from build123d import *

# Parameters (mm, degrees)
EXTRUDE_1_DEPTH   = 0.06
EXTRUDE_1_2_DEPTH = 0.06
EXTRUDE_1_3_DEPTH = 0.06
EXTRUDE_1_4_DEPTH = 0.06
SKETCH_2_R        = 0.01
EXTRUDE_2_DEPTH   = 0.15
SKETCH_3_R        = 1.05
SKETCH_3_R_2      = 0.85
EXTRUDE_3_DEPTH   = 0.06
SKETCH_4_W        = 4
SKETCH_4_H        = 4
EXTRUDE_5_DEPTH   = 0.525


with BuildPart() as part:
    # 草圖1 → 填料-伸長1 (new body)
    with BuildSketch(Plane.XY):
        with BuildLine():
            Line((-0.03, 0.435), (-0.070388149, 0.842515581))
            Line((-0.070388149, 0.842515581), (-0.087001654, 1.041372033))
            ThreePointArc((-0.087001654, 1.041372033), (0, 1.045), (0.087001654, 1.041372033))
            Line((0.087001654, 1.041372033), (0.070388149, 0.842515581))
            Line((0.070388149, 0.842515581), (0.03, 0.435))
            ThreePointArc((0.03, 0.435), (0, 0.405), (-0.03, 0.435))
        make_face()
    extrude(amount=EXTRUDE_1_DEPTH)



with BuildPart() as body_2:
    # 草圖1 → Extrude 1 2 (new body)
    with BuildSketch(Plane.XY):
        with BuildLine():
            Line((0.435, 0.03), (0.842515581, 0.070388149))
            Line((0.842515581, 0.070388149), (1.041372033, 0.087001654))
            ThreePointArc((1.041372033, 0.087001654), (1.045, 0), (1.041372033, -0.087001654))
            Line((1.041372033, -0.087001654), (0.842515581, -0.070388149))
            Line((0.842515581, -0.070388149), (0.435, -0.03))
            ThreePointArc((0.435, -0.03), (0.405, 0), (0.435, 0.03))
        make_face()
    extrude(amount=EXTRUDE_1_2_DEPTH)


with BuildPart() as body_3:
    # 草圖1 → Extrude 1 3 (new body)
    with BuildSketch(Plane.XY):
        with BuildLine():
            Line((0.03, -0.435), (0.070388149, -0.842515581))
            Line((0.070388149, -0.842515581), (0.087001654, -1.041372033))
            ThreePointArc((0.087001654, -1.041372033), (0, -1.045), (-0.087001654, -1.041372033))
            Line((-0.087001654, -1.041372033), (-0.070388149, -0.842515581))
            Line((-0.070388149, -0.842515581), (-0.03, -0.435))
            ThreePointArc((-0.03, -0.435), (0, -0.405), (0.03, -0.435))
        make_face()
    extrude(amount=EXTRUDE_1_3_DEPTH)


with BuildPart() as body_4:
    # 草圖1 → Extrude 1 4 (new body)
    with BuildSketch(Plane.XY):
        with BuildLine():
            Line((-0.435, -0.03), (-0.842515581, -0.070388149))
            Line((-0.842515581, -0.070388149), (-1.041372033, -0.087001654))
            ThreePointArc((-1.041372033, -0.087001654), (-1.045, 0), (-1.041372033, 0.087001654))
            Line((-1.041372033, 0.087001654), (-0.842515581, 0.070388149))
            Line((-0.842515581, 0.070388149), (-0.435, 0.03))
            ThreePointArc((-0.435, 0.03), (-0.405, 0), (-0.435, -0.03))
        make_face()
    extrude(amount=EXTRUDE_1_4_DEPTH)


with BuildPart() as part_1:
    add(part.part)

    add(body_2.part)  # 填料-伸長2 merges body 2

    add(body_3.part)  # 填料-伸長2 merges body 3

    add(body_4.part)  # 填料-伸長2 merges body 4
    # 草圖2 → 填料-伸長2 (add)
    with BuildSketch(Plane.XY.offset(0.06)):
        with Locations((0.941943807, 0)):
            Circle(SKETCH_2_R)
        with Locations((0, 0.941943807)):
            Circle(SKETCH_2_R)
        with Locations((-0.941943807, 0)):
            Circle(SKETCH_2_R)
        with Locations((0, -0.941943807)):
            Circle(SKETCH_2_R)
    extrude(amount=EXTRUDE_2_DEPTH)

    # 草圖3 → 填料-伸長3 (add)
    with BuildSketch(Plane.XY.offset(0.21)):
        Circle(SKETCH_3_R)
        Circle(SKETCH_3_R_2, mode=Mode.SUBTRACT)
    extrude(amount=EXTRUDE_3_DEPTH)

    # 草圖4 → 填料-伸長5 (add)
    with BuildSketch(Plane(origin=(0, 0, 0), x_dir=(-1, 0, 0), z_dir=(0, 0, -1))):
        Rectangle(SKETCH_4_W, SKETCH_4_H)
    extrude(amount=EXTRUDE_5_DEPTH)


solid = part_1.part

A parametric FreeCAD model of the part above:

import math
import FreeCAD as App
import Part
import Sketcher
Q = App.Units.Quantity


def add_polygon(sketch, points):
    """Adds a closed chain of lines whose ends are joined by coincident constraints."""
    first, n = sketch.GeometryCount, len(points)
    for a, b in zip(points, points[1:] + points[:1]):
        sketch.addGeometry(Part.LineSegment(App.Vector(*a, 0), App.Vector(*b, 0)), False)
    for i in range(n):
        sketch.addConstraint(Sketcher.Constraint("Coincident", first + i, 2, first + (i + 1) % n, 1))

doc = App.newDocument("Part")
body = doc.addObject("PartDesign::Body", "Body")

# Sketch on XY plane
sketch1 = body.newObject("Sketcher::SketchObject", "Sketch")
sketch1.AttachmentSupport = (doc.getObject("XY_Plane"), [""])
sketch1.MapMode = "FlatFace"
sketch1.addGeometry(Part.LineSegment(App.Vector(-0.07, 0.843, 0), App.Vector(-0.03, 0.435, 0)), False)
sketch1.addGeometry(Part.ArcOfCircle(Part.Circle(App.Vector(0, 0.435, 0), App.Vector(0, 0, 1), 0.03), math.radians(180), math.radians(360)), False)
sketch1.addGeometry(Part.LineSegment(App.Vector(0.03, 0.435, 0), App.Vector(0.07, 0.843, 0)), False)
sketch1.addGeometry(Part.LineSegment(App.Vector(0.07, 0.843, 0), App.Vector(0.087, 1.041, 0)), False)
sketch1.addGeometry(Part.ArcOfCircle(Part.Circle(App.Vector(0, 0, 0), App.Vector(0, 0, 1), 1.045), math.radians(85.22), math.radians(94.78)), False)
sketch1.addGeometry(Part.LineSegment(App.Vector(-0.087, 1.041, 0), App.Vector(-0.07, 0.843, 0)), False)
sketch1.addConstraint(Sketcher.Constraint("Coincident", 0, 2, 1, 1))
sketch1.addConstraint(Sketcher.Constraint("Coincident", 1, 2, 2, 1))
sketch1.addConstraint(Sketcher.Constraint("Coincident", 2, 2, 3, 1))
sketch1.addConstraint(Sketcher.Constraint("Coincident", 3, 2, 4, 1))
sketch1.addConstraint(Sketcher.Constraint("Coincident", 4, 2, 5, 1))
sketch1.addConstraint(Sketcher.Constraint("Coincident", 5, 2, 0, 1))
sketch1.addConstraint(Sketcher.Constraint("Coincident", 4, 3, -1, 1))
sketch1.addConstraint(Sketcher.Constraint("Symmetric", 0, 2, 1, 2, -2))
sketch1.addConstraint(Sketcher.Constraint("Symmetric", 2, 2, 5, 2, -2))
sketch1.addConstraint(Sketcher.Constraint("Horizontal", 1, 3, 0, 2))
sketch1.addConstraint(Sketcher.Constraint("Horizontal", 3, 2, 4, 2))
sketch1.addConstraint(Sketcher.Constraint("Radius", 1, 0.03))
sketch1.addConstraint(Sketcher.Constraint("Radius", 4, 1.045))
sketch1.addConstraint(Sketcher.Constraint("Angle", 0, Q("-84.34 deg")))
sketch1.addConstraint(Sketcher.Constraint("DistanceY", -1, 1, 1, 3, 0.435))
sketch1.addConstraint(Sketcher.Constraint("DistanceX", -1, 1, 3, 2, 0.087002))
sketch1.addConstraint(Sketcher.Constraint("Distance", 3, 0.199549))
pad1 = body.newObject("PartDesign::Pad", "Pad")
pad1.Profile = sketch1
pad1.Length = 0.06
body2 = doc.addObject("PartDesign::Body", "Body001")

# Sketch on XY plane
sketch2 = body2.newObject("Sketcher::SketchObject", "Sketch001")
sketch2.AttachmentSupport = (doc.getObject("XY_Plane001"), [""])
sketch2.MapMode = "FlatFace"
sketch2.addGeometry(Part.LineSegment(App.Vector(0.843, 0.07, 0), App.Vector(0.435, 0.03, 0)), False)
sketch2.addGeometry(Part.ArcOfCircle(Part.Circle(App.Vector(0.435, 0, 0), App.Vector(0, 0, 1), 0.03), math.radians(90), math.radians(270)), False)
sketch2.addGeometry(Part.LineSegment(App.Vector(0.435, -0.03, 0), App.Vector(0.843, -0.07, 0)), False)
sketch2.addGeometry(Part.LineSegment(App.Vector(0.843, -0.07, 0), App.Vector(1.041, -0.087, 0)), False)
sketch2.addGeometry(Part.ArcOfCircle(Part.Circle(App.Vector(0, 0, 0), App.Vector(0, 0, 1), 1.045), math.radians(-4.78), math.radians(4.78)), False)
sketch2.addGeometry(Part.LineSegment(App.Vector(1.041, 0.087, 0), App.Vector(0.843, 0.07, 0)), False)
sketch2.addConstraint(Sketcher.Constraint("Coincident", 0, 2, 1, 1))
sketch2.addConstraint(Sketcher.Constraint("Coincident", 1, 2, 2, 1))
sketch2.addConstraint(Sketcher.Constraint("Coincident", 2, 2, 3, 1))
sketch2.addConstraint(Sketcher.Constraint("Coincident", 3, 2, 4, 1))
sketch2.addConstraint(Sketcher.Constraint("Coincident", 4, 2, 5, 1))
sketch2.addConstraint(Sketcher.Constraint("Coincident", 5, 2, 0, 1))
sketch2.addConstraint(Sketcher.Constraint("Coincident", 4, 3, -1, 1))
sketch2.addConstraint(Sketcher.Constraint("Symmetric", 0, 2, 1, 2, -1))
sketch2.addConstraint(Sketcher.Constraint("Symmetric", 2, 2, 5, 2, -1))
sketch2.addConstraint(Sketcher.Constraint("Vertical", 1, 3, 0, 2))
sketch2.addConstraint(Sketcher.Constraint("Vertical", 3, 2, 4, 2))
sketch2.addConstraint(Sketcher.Constraint("Radius", 1, 0.03))
sketch2.addConstraint(Sketcher.Constraint("Radius", 4, 1.045))
sketch2.addConstraint(Sketcher.Constraint("Angle", 0, Q("-174.34 deg")))
sketch2.addConstraint(Sketcher.Constraint("DistanceX", -1, 1, 1, 3, 0.435))
sketch2.addConstraint(Sketcher.Constraint("DistanceY", 3, 2, -1, 1, 0.087002))
sketch2.addConstraint(Sketcher.Constraint("Distance", 3, 0.199549))
pad2 = body2.newObject("PartDesign::Pad", "Pad001")
pad2.Profile = sketch2
pad2.Length = 0.06
body3 = doc.addObject("PartDesign::Body", "Body002")

# Sketch on XY plane
sketch3 = body3.newObject("Sketcher::SketchObject", "Sketch002")
sketch3.AttachmentSupport = (doc.getObject("XY_Plane002"), [""])
sketch3.MapMode = "FlatFace"
sketch3.addGeometry(Part.LineSegment(App.Vector(0.07, -0.843, 0), App.Vector(0.03, -0.435, 0)), False)
sketch3.addGeometry(Part.ArcOfCircle(Part.Circle(App.Vector(0, -0.435, 0), App.Vector(0, 0, 1), 0.03), math.radians(0), math.radians(180)), False)
sketch3.addGeometry(Part.LineSegment(App.Vector(-0.03, -0.435, 0), App.Vector(-0.07, -0.843, 0)), False)
sketch3.addGeometry(Part.LineSegment(App.Vector(-0.07, -0.843, 0), App.Vector(-0.087, -1.041, 0)), False)
sketch3.addGeometry(Part.ArcOfCircle(Part.Circle(App.Vector(0, 0, 0), App.Vector(0, 0, 1), 1.045), math.radians(-94.78), math.radians(-85.22)), False)
sketch3.addGeometry(Part.LineSegment(App.Vector(0.087, -1.041, 0), App.Vector(0.07, -0.843, 0)), False)
sketch3.addConstraint(Sketcher.Constraint("Coincident", 0, 2, 1, 1))
sketch3.addConstraint(Sketcher.Constraint("Coincident", 1, 2, 2, 1))
sketch3.addConstraint(Sketcher.Constraint("Coincident", 2, 2, 3, 1))
sketch3.addConstraint(Sketcher.Constraint("Coincident", 3, 2, 4, 1))
sketch3.addConstraint(Sketcher.Constraint("Coincident", 4, 2, 5, 1))
sketch3.addConstraint(Sketcher.Constraint("Coincident", 5, 2, 0, 1))
sketch3.addConstraint(Sketcher.Constraint("Coincident", 4, 3, -1, 1))
sketch3.addConstraint(Sketcher.Constraint("Symmetric", 0, 2, 1, 2, -2))
sketch3.addConstraint(Sketcher.Constraint("Symmetric", 2, 2, 5, 2, -2))
sketch3.addConstraint(Sketcher.Constraint("Horizontal", 1, 3, 0, 2))
sketch3.addConstraint(Sketcher.Constraint("Horizontal", 3, 2, 4, 2))
sketch3.addConstraint(Sketcher.Constraint("Radius", 1, 0.03))
sketch3.addConstraint(Sketcher.Constraint("Radius", 4, 1.045))
sketch3.addConstraint(Sketcher.Constraint("Angle", 0, Q("95.66 deg")))
sketch3.addConstraint(Sketcher.Constraint("DistanceY", 1, 3, -1, 1, 0.435))
sketch3.addConstraint(Sketcher.Constraint("DistanceX", 3, 2, -1, 1, 0.087002))
sketch3.addConstraint(Sketcher.Constraint("Distance", 3, 0.199549))
pad3 = body3.newObject("PartDesign::Pad", "Pad002")
pad3.Profile = sketch3
pad3.Length = 0.06
body4 = doc.addObject("PartDesign::Body", "Body003")

# Sketch on XY plane
sketch4 = body4.newObject("Sketcher::SketchObject", "Sketch003")
sketch4.AttachmentSupport = (doc.getObject("XY_Plane003"), [""])
sketch4.MapMode = "FlatFace"
sketch4.addGeometry(Part.LineSegment(App.Vector(-0.843, -0.07, 0), App.Vector(-0.435, -0.03, 0)), False)
sketch4.addGeometry(Part.ArcOfCircle(Part.Circle(App.Vector(-0.435, 0, 0), App.Vector(0, 0, 1), 0.03), math.radians(-90), math.radians(90)), False)
sketch4.addGeometry(Part.LineSegment(App.Vector(-0.435, 0.03, 0), App.Vector(-0.843, 0.07, 0)), False)
sketch4.addGeometry(Part.LineSegment(App.Vector(-0.843, 0.07, 0), App.Vector(-1.041, 0.087, 0)), False)
sketch4.addGeometry(Part.ArcOfCircle(Part.Circle(App.Vector(0, 0, 0), App.Vector(0, 0, 1), 1.045), math.radians(175.22), math.radians(184.78)), False)
sketch4.addGeometry(Part.LineSegment(App.Vector(-1.041, -0.087, 0), App.Vector(-0.843, -0.07, 0)), False)
sketch4.addConstraint(Sketcher.Constraint("Coincident", 0, 2, 1, 1))
sketch4.addConstraint(Sketcher.Constraint("Coincident", 1, 2, 2, 1))
sketch4.addConstraint(Sketcher.Constraint("Coincident", 2, 2, 3, 1))
sketch4.addConstraint(Sketcher.Constraint("Coincident", 3, 2, 4, 1))
sketch4.addConstraint(Sketcher.Constraint("Coincident", 4, 2, 5, 1))
sketch4.addConstraint(Sketcher.Constraint("Coincident", 5, 2, 0, 1))
sketch4.addConstraint(Sketcher.Constraint("Coincident", 4, 3, -1, 1))
sketch4.addConstraint(Sketcher.Constraint("Symmetric", 0, 2, 1, 2, -1))
sketch4.addConstraint(Sketcher.Constraint("Symmetric", 2, 2, 5, 2, -1))
sketch4.addConstraint(Sketcher.Constraint("Vertical", 1, 3, 0, 2))
sketch4.addConstraint(Sketcher.Constraint("Vertical", 3, 2, 4, 2))
sketch4.addConstraint(Sketcher.Constraint("Radius", 1, 0.03))
sketch4.addConstraint(Sketcher.Constraint("Radius", 4, 1.045))
sketch4.addConstraint(Sketcher.Constraint("Angle", 0, Q("5.66 deg")))
sketch4.addConstraint(Sketcher.Constraint("DistanceX", 1, 3, -1, 1, 0.435))
sketch4.addConstraint(Sketcher.Constraint("DistanceY", -1, 1, 3, 2, 0.087002))
sketch4.addConstraint(Sketcher.Constraint("Distance", 3, 0.199549))
pad4 = body4.newObject("PartDesign::Pad", "Pad003")
pad4.Profile = sketch4
pad4.Length = 0.06
body.AllowCompound = True
doc.recompute()

boolean = body.newObject("PartDesign::Boolean", "Boolean")
boolean.Type = "Fuse"
boolean.addObjects([body2])
doc.recompute()

boolean2 = body.newObject("PartDesign::Boolean", "Boolean001")
boolean2.Type = "Fuse"
boolean2.addObjects([body3])
doc.recompute()

boolean3 = body.newObject("PartDesign::Boolean", "Boolean002")
boolean3.Type = "Fuse"
boolean3.addObjects([body4])

# Sketch on XY plane
sketch5 = body.newObject("Sketcher::SketchObject", "Sketch004")
sketch5.AttachmentSupport = (doc.getObject("XY_Plane"), [""])
sketch5.MapMode = "FlatFace"
sketch5.AttachmentOffset = App.Placement(App.Vector(0, 0, 0.06), App.Rotation())
sketch5.addGeometry(Part.Circle(App.Vector(0.942, 0, 0), App.Vector(0, 0, 1), 0.01), False)
sketch5.addGeometry(Part.Circle(App.Vector(0, 0.942, 0), App.Vector(0, 0, 1), 0.01), False)
sketch5.addGeometry(Part.Circle(App.Vector(-0.942, 0, 0), App.Vector(0, 0, 1), 0.01), False)
sketch5.addGeometry(Part.Circle(App.Vector(0, -0.942, 0), App.Vector(0, 0, 1), 0.01), False)
sketch5.addConstraint(Sketcher.Constraint("Equal", 0, 1))
sketch5.addConstraint(Sketcher.Constraint("Equal", 1, 2))
sketch5.addConstraint(Sketcher.Constraint("Equal", 2, 3))
sketch5.addConstraint(Sketcher.Constraint("Symmetric", 0, 3, 2, 3, -1, 1))
sketch5.addConstraint(Sketcher.Constraint("Symmetric", 1, 3, 3, 3, -1, 1))
sketch5.addConstraint(Sketcher.Constraint("PointOnObject", 0, 3, -1))
sketch5.addConstraint(Sketcher.Constraint("PointOnObject", 1, 3, -2))
sketch5.addConstraint(Sketcher.Constraint("Diameter", 0, 0.02))
sketch5.addConstraint(Sketcher.Constraint("DistanceX", -1, 1, 0, 3, 0.941944))
sketch5.addConstraint(Sketcher.Constraint("DistanceY", -1, 1, 1, 3, 0.941944))
pad5 = body.newObject("PartDesign::Pad", "Pad004")
pad5.Profile = sketch5
pad5.Length = 0.15

# Sketch on XY plane
sketch6 = body.newObject("Sketcher::SketchObject", "Sketch005")
sketch6.AttachmentSupport = (doc.getObject("XY_Plane"), [""])
sketch6.MapMode = "FlatFace"
sketch6.AttachmentOffset = App.Placement(App.Vector(0, 0, 0.21), App.Rotation())
sketch6.addGeometry(Part.Circle(App.Vector(0, 0, 0), App.Vector(0, 0, 1), 1.1), False)
sketch6.addGeometry(Part.Circle(App.Vector(0, 0, 0), App.Vector(0, 0, 1), 0.8), False)
sketch6.addConstraint(Sketcher.Constraint("Coincident", 0, 3, -1, 1))
sketch6.addConstraint(Sketcher.Constraint("Coincident", 1, 3, -1, 1))
sketch6.addConstraint(Sketcher.Constraint("Diameter", 0, 2.1))
sketch6.addConstraint(Sketcher.Constraint("Diameter", 1, 1.7))
pad6 = body.newObject("PartDesign::Pad", "Pad005")
pad6.Profile = sketch6
pad6.Length = 0.06

# Sketch on XY plane
sketch7 = body.newObject("Sketcher::SketchObject", "Sketch006")
sketch7.AttachmentSupport = (doc.getObject("XY_Plane"), [""])
sketch7.MapMode = "FlatFace"
add_polygon(sketch7, [(2, 2), (2, -2), (-2, -2), (-2, 2)])  # lines 0-3
sketch7.addConstraint(Sketcher.Constraint("Vertical", 0))
sketch7.addConstraint(Sketcher.Constraint("Horizontal", 1))
sketch7.addConstraint(Sketcher.Constraint("Vertical", 2))
sketch7.addConstraint(Sketcher.Constraint("Horizontal", 3))
sketch7.addConstraint(Sketcher.Constraint("Symmetric", 0, 2, 2, 2, -1, 1))
sketch7.addConstraint(Sketcher.Constraint("Equal", 3, 0))
sketch7.addConstraint(Sketcher.Constraint("DistanceX", 1, 2, 1, 1, 4.0))
pad7 = body.newObject("PartDesign::Pad", "Pad006")
pad7.Profile = sketch7
pad7.Length = 0.525
pad7.Reversed = True

doc.recompute()
